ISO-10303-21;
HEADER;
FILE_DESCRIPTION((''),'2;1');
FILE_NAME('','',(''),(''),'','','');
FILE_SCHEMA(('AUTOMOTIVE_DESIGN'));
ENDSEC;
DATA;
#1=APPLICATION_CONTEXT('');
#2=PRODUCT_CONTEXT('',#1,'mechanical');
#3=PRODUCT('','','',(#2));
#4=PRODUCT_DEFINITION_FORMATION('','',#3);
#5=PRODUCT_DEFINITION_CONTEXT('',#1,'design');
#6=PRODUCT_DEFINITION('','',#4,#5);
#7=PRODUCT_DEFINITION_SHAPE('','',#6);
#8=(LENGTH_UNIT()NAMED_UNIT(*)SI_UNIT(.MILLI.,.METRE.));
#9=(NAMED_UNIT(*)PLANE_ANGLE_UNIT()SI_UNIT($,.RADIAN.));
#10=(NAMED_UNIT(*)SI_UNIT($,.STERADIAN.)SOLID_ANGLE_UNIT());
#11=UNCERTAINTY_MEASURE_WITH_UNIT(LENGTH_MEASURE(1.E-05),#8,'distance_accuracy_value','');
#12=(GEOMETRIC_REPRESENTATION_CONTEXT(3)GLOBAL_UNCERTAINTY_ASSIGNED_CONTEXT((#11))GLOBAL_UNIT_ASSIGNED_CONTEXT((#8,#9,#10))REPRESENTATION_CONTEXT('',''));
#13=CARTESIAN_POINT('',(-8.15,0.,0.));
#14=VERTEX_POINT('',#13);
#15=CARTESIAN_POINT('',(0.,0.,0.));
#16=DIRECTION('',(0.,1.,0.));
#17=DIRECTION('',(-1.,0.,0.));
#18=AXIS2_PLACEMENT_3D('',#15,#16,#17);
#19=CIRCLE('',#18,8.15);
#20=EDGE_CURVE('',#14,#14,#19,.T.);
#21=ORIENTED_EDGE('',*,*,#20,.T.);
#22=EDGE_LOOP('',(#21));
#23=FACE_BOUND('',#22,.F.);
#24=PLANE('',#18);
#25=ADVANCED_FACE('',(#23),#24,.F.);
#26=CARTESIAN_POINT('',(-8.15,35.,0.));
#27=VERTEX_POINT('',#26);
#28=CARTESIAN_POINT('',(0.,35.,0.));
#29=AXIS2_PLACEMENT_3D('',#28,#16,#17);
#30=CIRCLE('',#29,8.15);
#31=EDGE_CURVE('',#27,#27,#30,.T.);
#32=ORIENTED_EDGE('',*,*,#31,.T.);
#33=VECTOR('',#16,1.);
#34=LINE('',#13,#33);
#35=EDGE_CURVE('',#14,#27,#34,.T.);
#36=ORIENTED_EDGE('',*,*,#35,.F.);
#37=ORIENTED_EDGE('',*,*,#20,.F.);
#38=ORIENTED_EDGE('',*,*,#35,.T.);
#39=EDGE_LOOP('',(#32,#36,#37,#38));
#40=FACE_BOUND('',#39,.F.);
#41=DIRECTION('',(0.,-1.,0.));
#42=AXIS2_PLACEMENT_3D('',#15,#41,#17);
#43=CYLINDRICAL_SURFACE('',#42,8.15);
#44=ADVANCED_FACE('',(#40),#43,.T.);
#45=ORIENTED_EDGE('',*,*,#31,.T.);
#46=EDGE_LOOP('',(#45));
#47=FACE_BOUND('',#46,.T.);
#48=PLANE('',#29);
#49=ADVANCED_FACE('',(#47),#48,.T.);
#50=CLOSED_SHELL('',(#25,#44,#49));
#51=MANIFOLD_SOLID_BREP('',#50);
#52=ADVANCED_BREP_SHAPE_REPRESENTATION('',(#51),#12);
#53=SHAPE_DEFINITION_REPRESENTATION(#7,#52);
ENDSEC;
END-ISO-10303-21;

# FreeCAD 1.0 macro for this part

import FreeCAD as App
import Part
import Sketcher
from FreeCAD import Vector

doc = App.newDocument("Part")
body = doc.addObject("PartDesign::Body", "Body")

# Sketch on XZ plane
sketch1 = body.newObject("Sketcher::SketchObject", "Sketch")
sketch1.AttachmentSupport = (doc.getObject("XZ_Plane"), [""])
sketch1.MapMode = "FlatFace"
sketch1.addGeometry(Part.Circle(Vector(0, 0, 0), Vector(0, 0, 1), 8), False)
sketch1.addConstraint(Sketcher.Constraint("Coincident", 0, 3, -1, 1))
sketch1.addConstraint(Sketcher.Constraint("Diameter", 0, 16.3))
pad1 = body.newObject("PartDesign::Pad", "Pad")
pad1.Profile = sketch1
pad1.Length = 35
pad1.Reversed = True

doc.recompute()
